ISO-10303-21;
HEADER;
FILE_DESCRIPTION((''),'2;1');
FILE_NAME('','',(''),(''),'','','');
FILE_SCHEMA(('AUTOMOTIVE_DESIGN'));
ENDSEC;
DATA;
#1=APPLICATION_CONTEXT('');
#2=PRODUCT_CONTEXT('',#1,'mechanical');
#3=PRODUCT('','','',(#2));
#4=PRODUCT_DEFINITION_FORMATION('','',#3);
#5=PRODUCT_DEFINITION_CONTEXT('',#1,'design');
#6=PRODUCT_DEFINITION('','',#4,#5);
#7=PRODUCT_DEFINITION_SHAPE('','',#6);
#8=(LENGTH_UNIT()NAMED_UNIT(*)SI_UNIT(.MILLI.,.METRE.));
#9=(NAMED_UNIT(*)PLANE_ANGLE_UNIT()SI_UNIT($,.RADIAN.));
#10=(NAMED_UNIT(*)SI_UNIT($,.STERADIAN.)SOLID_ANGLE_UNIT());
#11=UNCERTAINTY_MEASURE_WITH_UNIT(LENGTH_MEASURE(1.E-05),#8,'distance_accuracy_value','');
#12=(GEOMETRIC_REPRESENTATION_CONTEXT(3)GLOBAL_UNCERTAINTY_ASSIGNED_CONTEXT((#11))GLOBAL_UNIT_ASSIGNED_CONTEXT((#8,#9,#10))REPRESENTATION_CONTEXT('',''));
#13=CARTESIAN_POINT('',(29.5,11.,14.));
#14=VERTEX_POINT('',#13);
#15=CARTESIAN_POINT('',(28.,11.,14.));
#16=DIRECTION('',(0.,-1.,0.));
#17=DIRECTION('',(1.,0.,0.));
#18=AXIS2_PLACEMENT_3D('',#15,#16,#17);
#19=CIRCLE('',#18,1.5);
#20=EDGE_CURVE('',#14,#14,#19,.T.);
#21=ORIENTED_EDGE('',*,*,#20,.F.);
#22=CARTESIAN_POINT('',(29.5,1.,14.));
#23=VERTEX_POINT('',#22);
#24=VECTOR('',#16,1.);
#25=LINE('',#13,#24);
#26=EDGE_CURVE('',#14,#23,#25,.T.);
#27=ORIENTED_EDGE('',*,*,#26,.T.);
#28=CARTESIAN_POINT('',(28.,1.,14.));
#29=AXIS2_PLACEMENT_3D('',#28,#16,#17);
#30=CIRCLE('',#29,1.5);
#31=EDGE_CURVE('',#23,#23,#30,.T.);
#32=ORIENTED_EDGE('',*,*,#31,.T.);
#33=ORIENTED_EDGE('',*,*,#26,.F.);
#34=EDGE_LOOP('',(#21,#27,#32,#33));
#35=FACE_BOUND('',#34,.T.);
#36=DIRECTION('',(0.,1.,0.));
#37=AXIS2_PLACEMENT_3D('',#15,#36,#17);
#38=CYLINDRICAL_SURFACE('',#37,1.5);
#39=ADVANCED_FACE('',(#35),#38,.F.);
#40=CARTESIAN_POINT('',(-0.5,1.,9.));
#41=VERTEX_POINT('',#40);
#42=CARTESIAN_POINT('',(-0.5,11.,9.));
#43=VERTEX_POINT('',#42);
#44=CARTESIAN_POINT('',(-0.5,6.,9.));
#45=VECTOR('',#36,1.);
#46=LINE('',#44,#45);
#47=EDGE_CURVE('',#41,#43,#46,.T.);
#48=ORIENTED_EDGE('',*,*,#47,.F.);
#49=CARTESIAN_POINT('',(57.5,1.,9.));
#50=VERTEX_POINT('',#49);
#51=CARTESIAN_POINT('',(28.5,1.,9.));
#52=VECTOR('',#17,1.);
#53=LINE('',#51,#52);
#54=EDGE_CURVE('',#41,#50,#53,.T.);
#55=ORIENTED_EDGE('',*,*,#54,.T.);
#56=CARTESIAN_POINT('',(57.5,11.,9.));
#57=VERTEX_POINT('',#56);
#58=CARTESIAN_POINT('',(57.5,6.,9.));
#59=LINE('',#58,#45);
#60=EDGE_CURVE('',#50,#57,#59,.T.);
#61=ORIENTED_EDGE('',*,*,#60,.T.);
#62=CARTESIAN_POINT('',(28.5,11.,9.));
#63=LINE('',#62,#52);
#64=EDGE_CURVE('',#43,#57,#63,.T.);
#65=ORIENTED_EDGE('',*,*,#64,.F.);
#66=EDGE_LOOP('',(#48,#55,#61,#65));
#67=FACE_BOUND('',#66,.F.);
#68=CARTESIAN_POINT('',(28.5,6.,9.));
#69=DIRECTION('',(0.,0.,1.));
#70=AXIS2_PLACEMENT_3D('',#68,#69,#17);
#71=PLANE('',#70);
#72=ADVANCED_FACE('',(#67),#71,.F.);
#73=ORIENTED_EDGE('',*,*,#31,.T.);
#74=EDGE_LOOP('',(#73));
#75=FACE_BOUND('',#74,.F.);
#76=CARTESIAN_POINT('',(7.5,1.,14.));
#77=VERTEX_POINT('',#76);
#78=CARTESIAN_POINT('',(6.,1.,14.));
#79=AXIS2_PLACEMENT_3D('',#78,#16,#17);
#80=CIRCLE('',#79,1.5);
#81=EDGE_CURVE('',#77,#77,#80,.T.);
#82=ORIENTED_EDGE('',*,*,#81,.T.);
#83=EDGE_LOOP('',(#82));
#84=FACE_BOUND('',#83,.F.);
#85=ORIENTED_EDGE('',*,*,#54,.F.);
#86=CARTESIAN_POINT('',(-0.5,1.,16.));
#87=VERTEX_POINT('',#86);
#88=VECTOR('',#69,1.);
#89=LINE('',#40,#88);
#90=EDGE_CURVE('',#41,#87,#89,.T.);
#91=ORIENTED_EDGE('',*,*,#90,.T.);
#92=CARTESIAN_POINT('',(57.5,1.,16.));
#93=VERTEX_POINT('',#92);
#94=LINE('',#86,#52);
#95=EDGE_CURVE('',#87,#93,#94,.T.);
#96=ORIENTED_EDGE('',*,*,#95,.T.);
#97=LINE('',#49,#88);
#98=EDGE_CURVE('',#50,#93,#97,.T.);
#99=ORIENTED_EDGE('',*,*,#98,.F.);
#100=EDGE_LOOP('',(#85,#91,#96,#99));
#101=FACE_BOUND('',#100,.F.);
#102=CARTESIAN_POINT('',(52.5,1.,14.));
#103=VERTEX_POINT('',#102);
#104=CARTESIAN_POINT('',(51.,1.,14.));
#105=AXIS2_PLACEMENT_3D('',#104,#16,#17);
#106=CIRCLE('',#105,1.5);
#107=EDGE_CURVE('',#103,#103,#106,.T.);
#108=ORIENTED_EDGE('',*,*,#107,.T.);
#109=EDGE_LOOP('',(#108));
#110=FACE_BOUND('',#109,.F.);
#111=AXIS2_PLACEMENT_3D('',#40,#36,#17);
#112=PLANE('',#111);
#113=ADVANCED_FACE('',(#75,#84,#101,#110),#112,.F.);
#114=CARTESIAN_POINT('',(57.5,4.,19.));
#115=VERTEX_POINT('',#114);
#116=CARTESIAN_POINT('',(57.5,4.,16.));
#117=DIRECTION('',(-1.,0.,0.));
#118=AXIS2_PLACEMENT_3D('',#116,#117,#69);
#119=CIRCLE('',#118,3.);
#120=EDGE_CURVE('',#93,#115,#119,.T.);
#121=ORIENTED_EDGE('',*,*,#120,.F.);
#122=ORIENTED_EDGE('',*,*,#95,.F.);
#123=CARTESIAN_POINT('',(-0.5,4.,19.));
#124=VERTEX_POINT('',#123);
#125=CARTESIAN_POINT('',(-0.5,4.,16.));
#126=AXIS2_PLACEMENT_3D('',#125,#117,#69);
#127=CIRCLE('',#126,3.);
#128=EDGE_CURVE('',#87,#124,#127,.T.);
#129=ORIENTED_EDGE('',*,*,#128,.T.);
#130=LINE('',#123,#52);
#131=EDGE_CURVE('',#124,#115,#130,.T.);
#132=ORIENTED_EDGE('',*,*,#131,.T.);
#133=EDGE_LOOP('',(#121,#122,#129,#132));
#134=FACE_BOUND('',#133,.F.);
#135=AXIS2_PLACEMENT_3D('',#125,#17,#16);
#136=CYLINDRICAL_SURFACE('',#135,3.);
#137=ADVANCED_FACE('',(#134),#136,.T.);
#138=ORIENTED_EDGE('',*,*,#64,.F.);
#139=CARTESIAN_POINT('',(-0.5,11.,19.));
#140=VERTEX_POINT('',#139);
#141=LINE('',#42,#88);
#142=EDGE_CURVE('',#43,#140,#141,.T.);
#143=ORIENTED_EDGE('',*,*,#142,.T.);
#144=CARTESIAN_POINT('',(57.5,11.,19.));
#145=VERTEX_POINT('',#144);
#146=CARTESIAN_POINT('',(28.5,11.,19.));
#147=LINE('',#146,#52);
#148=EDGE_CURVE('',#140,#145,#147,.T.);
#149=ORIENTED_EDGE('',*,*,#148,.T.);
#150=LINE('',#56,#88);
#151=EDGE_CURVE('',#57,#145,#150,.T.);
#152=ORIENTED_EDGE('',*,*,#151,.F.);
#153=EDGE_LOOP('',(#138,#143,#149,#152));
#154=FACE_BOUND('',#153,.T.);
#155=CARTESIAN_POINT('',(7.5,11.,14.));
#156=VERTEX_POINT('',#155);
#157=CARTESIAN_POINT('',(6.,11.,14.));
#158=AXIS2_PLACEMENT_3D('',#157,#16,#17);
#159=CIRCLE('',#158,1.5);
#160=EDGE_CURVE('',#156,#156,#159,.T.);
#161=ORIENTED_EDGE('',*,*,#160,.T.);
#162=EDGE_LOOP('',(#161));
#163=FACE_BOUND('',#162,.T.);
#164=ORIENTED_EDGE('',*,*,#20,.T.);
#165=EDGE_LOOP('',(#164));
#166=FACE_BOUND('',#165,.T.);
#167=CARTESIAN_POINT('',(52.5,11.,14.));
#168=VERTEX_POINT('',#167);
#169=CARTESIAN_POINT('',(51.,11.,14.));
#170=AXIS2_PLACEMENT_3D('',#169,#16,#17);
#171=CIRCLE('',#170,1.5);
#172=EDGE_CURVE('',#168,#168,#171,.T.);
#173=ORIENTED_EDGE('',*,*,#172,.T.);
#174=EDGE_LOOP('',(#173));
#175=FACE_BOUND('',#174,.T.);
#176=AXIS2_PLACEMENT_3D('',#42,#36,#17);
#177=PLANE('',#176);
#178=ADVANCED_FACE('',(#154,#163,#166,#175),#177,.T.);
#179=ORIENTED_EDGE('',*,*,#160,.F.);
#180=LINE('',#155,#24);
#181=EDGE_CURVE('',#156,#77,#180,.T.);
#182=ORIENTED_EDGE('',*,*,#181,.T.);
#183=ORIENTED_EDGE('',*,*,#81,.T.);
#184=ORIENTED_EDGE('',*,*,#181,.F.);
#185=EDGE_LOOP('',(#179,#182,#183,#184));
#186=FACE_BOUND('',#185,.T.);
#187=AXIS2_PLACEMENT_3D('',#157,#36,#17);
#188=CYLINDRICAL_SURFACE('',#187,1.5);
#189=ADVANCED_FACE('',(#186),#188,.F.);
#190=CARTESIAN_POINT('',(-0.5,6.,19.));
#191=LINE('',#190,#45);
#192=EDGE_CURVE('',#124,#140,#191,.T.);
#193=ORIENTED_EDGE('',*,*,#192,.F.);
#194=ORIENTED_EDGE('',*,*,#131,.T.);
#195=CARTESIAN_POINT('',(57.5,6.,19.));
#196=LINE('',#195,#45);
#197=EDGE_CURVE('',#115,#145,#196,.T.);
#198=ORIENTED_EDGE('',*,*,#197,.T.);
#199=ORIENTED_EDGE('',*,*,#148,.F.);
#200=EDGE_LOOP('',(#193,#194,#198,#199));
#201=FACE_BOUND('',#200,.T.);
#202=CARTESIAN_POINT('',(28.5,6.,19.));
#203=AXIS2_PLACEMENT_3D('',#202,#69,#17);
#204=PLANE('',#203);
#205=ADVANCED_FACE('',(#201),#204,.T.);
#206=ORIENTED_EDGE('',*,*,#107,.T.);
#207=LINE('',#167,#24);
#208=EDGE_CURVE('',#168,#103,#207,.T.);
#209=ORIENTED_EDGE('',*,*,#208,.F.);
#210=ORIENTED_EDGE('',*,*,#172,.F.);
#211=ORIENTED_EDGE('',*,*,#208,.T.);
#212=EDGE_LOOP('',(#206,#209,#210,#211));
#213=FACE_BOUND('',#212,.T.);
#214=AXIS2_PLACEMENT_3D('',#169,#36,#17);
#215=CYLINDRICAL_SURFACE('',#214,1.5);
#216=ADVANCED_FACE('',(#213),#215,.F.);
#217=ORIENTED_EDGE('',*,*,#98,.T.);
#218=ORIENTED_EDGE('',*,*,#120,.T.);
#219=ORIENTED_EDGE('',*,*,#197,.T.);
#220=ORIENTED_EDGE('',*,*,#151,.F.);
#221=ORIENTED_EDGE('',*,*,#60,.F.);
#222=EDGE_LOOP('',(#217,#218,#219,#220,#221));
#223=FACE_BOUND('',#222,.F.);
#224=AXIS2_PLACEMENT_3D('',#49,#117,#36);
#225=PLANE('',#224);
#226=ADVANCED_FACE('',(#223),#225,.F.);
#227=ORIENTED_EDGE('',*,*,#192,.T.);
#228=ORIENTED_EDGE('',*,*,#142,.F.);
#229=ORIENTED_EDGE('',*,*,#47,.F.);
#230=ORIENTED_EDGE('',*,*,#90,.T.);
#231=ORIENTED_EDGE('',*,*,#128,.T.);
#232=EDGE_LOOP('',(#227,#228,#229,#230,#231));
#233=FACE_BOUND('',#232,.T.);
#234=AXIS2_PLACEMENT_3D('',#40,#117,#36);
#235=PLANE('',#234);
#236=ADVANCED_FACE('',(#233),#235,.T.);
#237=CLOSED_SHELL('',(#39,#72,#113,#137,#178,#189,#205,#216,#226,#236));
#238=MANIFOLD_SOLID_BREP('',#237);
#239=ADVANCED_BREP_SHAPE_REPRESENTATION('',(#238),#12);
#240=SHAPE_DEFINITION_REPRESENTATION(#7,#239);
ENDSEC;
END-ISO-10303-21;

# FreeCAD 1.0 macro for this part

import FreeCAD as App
import Part
import Sketcher

V = App.Vector
Q = App.Units.Quantity


def edges_at(feature, points):
    """Names of the edges that pass closest to the given points."""
    edges = feature.Shape.Edges
    near = lambda p: min(range(len(edges)), key=lambda i: edges[i].distToShape(Part.Vertex(*p))[0])
    return sorted({f"Edge{near(p) + 1}" for p in points})


def add_polygon(sketch, points):
    """Adds a closed chain of lines whose ends are joined by coincident constraints."""
    first, n = sketch.GeometryCount, len(points)
    for a, b in zip(points, points[1:] + points[:1]):
        sketch.addGeometry(Part.LineSegment(App.Vector(*a, 0), App.Vector(*b, 0)), False)
    for i in range(n):
        sketch.addConstraint(Sketcher.Constraint("Coincident", first + i, 2, first + (i + 1) % n, 1))

doc = App.newDocument("Part")
body = doc.addObject("PartDesign::Body", "Body")

# Sketch on XZ plane
sketch1 = body.newObject("Sketcher::SketchObject", "Sketch")
sketch1.AttachmentSupport = (doc.getObject("XZ_Plane"), [""])
sketch1.MapMode = "FlatFace"
sketch1.AttachmentOffset = App.Placement(V(0, 0, -11), App.Rotation())
sketch1.addGeometry(Part.Circle(V(28, 14, 0), V(0, 0, 1), 1.5), False)
sketch1.addConstraint([
    Sketcher.Constraint("Diameter", 0, Q("3 mm")),
    Sketcher.Constraint("DistanceX", -1, 1, 0, 3, Q("28 mm")),
    Sketcher.Constraint("DistanceY", -1, 1, 0, 3, Q("14 mm")),
])
pad1 = body.newObject("PartDesign::Pad", "Pad")
pad1.Profile = sketch1
pad1.Length = 10
body2 = doc.addObject("PartDesign::Body", "Body001")

# Sketch on XZ plane
sketch2 = body2.newObject("Sketcher::SketchObject", "Sketch001")
sketch2.AttachmentSupport = (doc.getObject("XZ_Plane001"), [""])
sketch2.MapMode = "FlatFace"
sketch2.AttachmentOffset = App.Placement(V(0, 0, -11), App.Rotation())
sketch2.addGeometry(Part.Circle(V(51, 14, 0), V(0, 0, 1), 1.5), False)
sketch2.addConstraint([
    Sketcher.Constraint("Diameter", 0, Q("3 mm")),
    Sketcher.Constraint("DistanceX", -1, 1, 0, 3, Q("51 mm")),
    Sketcher.Constraint("DistanceY", -1, 1, 0, 3, Q("14 mm")),
])
pad2 = body2.newObject("PartDesign::Pad", "Pad001")
pad2.Profile = sketch2
pad2.Length = 10
body3 = doc.addObject("PartDesign::Body", "Body002")
body3.AllowCompound = True

# Sketch on XZ plane
sketch3 = body3.newObject("Sketcher::SketchObject", "Sketch002")
sketch3.AttachmentSupport = (doc.getObject("XZ_Plane002"), [""])
sketch3.MapMode = "FlatFace"
sketch3.AttachmentOffset = App.Placement(V(0, 0, -11), App.Rotation())
sketch3.addGeometry(Part.Circle(V(6, 14, 0), V(0, 0, 1), 1.5), False)
sketch3.addConstraint([
    Sketcher.Constraint("Diameter", 0, Q("3 mm")),
    Sketcher.Constraint("DistanceX", -1, 1, 0, 3, Q("6 mm")),
    Sketcher.Constraint("DistanceY", -1, 1, 0, 3, Q("14 mm")),
])
pad3 = body3.newObject("PartDesign::Pad", "Pad002")
pad3.Profile = sketch3
pad3.Length = 10
doc.recompute()

boolean = body3.newObject("PartDesign::Boolean", "Boolean")
boolean.Type = "Fuse"
boolean.addObjects([body])
doc.recompute()

boolean2 = body3.newObject("PartDesign::Boolean", "Boolean001")
boolean2.Type = "Fuse"
boolean2.addObjects([body2])
body4 = doc.addObject("PartDesign::Body", "Body003")

# Sketch on XY plane
sketch4 = body4.newObject("Sketcher::SketchObject", "Sketch003")
sketch4.AttachmentSupport = (doc.getObject("XY_Plane003"), [""])
sketch4.MapMode = "FlatFace"
sketch4.AttachmentOffset = App.Placement(V(0, 0, 9), App.Rotation())
add_polygon(sketch4, [(0, 10), (0, 0), (58, 0), (58, 10)])  # lines 0-3
sketch4.addConstraint([
    Sketcher.Constraint("Vertical", 0),
    Sketcher.Constraint("Horizontal", 1),
    Sketcher.Constraint("Vertical", 2),
    Sketcher.Constraint("Horizontal", 3),
    Sketcher.Constraint("Coincident", 0, 2, -1, 1),
    Sketcher.Constraint("DistanceX", 1, 1, 1, 2, Q("58 mm")),
    Sketcher.Constraint("DistanceY", 0, 2, 0, 1, Q("10 mm")),
])
pad4 = body4.newObject("PartDesign::Pad", "Pad003")
pad4.Profile = sketch4
pad4.Length = 10
doc.recompute()

fillet = body4.newObject("PartDesign::Fillet", "Fillet")
fillet.Base = (pad4, edges_at(pad4, [(29, 0, 19)]))
fillet.Radius = 3
body5 = doc.addObject("PartDesign::Body", "Body004")
doc.recompute()

body4.Placement = App.Placement(V(-0.5, 1, 0), App.Rotation(V(0, 0, 1), 0))
boolean3 = body5.newObject("PartDesign::Boolean", "Boolean002")
boolean3.Type = "Fuse"
boolean3.addObjects([body4])
doc.recompute()

boolean4 = body5.newObject("PartDesign::Boolean", "Boolean003")
boolean4.Type = "Cut"
boolean4.addObjects([body3])

doc.recompute()
